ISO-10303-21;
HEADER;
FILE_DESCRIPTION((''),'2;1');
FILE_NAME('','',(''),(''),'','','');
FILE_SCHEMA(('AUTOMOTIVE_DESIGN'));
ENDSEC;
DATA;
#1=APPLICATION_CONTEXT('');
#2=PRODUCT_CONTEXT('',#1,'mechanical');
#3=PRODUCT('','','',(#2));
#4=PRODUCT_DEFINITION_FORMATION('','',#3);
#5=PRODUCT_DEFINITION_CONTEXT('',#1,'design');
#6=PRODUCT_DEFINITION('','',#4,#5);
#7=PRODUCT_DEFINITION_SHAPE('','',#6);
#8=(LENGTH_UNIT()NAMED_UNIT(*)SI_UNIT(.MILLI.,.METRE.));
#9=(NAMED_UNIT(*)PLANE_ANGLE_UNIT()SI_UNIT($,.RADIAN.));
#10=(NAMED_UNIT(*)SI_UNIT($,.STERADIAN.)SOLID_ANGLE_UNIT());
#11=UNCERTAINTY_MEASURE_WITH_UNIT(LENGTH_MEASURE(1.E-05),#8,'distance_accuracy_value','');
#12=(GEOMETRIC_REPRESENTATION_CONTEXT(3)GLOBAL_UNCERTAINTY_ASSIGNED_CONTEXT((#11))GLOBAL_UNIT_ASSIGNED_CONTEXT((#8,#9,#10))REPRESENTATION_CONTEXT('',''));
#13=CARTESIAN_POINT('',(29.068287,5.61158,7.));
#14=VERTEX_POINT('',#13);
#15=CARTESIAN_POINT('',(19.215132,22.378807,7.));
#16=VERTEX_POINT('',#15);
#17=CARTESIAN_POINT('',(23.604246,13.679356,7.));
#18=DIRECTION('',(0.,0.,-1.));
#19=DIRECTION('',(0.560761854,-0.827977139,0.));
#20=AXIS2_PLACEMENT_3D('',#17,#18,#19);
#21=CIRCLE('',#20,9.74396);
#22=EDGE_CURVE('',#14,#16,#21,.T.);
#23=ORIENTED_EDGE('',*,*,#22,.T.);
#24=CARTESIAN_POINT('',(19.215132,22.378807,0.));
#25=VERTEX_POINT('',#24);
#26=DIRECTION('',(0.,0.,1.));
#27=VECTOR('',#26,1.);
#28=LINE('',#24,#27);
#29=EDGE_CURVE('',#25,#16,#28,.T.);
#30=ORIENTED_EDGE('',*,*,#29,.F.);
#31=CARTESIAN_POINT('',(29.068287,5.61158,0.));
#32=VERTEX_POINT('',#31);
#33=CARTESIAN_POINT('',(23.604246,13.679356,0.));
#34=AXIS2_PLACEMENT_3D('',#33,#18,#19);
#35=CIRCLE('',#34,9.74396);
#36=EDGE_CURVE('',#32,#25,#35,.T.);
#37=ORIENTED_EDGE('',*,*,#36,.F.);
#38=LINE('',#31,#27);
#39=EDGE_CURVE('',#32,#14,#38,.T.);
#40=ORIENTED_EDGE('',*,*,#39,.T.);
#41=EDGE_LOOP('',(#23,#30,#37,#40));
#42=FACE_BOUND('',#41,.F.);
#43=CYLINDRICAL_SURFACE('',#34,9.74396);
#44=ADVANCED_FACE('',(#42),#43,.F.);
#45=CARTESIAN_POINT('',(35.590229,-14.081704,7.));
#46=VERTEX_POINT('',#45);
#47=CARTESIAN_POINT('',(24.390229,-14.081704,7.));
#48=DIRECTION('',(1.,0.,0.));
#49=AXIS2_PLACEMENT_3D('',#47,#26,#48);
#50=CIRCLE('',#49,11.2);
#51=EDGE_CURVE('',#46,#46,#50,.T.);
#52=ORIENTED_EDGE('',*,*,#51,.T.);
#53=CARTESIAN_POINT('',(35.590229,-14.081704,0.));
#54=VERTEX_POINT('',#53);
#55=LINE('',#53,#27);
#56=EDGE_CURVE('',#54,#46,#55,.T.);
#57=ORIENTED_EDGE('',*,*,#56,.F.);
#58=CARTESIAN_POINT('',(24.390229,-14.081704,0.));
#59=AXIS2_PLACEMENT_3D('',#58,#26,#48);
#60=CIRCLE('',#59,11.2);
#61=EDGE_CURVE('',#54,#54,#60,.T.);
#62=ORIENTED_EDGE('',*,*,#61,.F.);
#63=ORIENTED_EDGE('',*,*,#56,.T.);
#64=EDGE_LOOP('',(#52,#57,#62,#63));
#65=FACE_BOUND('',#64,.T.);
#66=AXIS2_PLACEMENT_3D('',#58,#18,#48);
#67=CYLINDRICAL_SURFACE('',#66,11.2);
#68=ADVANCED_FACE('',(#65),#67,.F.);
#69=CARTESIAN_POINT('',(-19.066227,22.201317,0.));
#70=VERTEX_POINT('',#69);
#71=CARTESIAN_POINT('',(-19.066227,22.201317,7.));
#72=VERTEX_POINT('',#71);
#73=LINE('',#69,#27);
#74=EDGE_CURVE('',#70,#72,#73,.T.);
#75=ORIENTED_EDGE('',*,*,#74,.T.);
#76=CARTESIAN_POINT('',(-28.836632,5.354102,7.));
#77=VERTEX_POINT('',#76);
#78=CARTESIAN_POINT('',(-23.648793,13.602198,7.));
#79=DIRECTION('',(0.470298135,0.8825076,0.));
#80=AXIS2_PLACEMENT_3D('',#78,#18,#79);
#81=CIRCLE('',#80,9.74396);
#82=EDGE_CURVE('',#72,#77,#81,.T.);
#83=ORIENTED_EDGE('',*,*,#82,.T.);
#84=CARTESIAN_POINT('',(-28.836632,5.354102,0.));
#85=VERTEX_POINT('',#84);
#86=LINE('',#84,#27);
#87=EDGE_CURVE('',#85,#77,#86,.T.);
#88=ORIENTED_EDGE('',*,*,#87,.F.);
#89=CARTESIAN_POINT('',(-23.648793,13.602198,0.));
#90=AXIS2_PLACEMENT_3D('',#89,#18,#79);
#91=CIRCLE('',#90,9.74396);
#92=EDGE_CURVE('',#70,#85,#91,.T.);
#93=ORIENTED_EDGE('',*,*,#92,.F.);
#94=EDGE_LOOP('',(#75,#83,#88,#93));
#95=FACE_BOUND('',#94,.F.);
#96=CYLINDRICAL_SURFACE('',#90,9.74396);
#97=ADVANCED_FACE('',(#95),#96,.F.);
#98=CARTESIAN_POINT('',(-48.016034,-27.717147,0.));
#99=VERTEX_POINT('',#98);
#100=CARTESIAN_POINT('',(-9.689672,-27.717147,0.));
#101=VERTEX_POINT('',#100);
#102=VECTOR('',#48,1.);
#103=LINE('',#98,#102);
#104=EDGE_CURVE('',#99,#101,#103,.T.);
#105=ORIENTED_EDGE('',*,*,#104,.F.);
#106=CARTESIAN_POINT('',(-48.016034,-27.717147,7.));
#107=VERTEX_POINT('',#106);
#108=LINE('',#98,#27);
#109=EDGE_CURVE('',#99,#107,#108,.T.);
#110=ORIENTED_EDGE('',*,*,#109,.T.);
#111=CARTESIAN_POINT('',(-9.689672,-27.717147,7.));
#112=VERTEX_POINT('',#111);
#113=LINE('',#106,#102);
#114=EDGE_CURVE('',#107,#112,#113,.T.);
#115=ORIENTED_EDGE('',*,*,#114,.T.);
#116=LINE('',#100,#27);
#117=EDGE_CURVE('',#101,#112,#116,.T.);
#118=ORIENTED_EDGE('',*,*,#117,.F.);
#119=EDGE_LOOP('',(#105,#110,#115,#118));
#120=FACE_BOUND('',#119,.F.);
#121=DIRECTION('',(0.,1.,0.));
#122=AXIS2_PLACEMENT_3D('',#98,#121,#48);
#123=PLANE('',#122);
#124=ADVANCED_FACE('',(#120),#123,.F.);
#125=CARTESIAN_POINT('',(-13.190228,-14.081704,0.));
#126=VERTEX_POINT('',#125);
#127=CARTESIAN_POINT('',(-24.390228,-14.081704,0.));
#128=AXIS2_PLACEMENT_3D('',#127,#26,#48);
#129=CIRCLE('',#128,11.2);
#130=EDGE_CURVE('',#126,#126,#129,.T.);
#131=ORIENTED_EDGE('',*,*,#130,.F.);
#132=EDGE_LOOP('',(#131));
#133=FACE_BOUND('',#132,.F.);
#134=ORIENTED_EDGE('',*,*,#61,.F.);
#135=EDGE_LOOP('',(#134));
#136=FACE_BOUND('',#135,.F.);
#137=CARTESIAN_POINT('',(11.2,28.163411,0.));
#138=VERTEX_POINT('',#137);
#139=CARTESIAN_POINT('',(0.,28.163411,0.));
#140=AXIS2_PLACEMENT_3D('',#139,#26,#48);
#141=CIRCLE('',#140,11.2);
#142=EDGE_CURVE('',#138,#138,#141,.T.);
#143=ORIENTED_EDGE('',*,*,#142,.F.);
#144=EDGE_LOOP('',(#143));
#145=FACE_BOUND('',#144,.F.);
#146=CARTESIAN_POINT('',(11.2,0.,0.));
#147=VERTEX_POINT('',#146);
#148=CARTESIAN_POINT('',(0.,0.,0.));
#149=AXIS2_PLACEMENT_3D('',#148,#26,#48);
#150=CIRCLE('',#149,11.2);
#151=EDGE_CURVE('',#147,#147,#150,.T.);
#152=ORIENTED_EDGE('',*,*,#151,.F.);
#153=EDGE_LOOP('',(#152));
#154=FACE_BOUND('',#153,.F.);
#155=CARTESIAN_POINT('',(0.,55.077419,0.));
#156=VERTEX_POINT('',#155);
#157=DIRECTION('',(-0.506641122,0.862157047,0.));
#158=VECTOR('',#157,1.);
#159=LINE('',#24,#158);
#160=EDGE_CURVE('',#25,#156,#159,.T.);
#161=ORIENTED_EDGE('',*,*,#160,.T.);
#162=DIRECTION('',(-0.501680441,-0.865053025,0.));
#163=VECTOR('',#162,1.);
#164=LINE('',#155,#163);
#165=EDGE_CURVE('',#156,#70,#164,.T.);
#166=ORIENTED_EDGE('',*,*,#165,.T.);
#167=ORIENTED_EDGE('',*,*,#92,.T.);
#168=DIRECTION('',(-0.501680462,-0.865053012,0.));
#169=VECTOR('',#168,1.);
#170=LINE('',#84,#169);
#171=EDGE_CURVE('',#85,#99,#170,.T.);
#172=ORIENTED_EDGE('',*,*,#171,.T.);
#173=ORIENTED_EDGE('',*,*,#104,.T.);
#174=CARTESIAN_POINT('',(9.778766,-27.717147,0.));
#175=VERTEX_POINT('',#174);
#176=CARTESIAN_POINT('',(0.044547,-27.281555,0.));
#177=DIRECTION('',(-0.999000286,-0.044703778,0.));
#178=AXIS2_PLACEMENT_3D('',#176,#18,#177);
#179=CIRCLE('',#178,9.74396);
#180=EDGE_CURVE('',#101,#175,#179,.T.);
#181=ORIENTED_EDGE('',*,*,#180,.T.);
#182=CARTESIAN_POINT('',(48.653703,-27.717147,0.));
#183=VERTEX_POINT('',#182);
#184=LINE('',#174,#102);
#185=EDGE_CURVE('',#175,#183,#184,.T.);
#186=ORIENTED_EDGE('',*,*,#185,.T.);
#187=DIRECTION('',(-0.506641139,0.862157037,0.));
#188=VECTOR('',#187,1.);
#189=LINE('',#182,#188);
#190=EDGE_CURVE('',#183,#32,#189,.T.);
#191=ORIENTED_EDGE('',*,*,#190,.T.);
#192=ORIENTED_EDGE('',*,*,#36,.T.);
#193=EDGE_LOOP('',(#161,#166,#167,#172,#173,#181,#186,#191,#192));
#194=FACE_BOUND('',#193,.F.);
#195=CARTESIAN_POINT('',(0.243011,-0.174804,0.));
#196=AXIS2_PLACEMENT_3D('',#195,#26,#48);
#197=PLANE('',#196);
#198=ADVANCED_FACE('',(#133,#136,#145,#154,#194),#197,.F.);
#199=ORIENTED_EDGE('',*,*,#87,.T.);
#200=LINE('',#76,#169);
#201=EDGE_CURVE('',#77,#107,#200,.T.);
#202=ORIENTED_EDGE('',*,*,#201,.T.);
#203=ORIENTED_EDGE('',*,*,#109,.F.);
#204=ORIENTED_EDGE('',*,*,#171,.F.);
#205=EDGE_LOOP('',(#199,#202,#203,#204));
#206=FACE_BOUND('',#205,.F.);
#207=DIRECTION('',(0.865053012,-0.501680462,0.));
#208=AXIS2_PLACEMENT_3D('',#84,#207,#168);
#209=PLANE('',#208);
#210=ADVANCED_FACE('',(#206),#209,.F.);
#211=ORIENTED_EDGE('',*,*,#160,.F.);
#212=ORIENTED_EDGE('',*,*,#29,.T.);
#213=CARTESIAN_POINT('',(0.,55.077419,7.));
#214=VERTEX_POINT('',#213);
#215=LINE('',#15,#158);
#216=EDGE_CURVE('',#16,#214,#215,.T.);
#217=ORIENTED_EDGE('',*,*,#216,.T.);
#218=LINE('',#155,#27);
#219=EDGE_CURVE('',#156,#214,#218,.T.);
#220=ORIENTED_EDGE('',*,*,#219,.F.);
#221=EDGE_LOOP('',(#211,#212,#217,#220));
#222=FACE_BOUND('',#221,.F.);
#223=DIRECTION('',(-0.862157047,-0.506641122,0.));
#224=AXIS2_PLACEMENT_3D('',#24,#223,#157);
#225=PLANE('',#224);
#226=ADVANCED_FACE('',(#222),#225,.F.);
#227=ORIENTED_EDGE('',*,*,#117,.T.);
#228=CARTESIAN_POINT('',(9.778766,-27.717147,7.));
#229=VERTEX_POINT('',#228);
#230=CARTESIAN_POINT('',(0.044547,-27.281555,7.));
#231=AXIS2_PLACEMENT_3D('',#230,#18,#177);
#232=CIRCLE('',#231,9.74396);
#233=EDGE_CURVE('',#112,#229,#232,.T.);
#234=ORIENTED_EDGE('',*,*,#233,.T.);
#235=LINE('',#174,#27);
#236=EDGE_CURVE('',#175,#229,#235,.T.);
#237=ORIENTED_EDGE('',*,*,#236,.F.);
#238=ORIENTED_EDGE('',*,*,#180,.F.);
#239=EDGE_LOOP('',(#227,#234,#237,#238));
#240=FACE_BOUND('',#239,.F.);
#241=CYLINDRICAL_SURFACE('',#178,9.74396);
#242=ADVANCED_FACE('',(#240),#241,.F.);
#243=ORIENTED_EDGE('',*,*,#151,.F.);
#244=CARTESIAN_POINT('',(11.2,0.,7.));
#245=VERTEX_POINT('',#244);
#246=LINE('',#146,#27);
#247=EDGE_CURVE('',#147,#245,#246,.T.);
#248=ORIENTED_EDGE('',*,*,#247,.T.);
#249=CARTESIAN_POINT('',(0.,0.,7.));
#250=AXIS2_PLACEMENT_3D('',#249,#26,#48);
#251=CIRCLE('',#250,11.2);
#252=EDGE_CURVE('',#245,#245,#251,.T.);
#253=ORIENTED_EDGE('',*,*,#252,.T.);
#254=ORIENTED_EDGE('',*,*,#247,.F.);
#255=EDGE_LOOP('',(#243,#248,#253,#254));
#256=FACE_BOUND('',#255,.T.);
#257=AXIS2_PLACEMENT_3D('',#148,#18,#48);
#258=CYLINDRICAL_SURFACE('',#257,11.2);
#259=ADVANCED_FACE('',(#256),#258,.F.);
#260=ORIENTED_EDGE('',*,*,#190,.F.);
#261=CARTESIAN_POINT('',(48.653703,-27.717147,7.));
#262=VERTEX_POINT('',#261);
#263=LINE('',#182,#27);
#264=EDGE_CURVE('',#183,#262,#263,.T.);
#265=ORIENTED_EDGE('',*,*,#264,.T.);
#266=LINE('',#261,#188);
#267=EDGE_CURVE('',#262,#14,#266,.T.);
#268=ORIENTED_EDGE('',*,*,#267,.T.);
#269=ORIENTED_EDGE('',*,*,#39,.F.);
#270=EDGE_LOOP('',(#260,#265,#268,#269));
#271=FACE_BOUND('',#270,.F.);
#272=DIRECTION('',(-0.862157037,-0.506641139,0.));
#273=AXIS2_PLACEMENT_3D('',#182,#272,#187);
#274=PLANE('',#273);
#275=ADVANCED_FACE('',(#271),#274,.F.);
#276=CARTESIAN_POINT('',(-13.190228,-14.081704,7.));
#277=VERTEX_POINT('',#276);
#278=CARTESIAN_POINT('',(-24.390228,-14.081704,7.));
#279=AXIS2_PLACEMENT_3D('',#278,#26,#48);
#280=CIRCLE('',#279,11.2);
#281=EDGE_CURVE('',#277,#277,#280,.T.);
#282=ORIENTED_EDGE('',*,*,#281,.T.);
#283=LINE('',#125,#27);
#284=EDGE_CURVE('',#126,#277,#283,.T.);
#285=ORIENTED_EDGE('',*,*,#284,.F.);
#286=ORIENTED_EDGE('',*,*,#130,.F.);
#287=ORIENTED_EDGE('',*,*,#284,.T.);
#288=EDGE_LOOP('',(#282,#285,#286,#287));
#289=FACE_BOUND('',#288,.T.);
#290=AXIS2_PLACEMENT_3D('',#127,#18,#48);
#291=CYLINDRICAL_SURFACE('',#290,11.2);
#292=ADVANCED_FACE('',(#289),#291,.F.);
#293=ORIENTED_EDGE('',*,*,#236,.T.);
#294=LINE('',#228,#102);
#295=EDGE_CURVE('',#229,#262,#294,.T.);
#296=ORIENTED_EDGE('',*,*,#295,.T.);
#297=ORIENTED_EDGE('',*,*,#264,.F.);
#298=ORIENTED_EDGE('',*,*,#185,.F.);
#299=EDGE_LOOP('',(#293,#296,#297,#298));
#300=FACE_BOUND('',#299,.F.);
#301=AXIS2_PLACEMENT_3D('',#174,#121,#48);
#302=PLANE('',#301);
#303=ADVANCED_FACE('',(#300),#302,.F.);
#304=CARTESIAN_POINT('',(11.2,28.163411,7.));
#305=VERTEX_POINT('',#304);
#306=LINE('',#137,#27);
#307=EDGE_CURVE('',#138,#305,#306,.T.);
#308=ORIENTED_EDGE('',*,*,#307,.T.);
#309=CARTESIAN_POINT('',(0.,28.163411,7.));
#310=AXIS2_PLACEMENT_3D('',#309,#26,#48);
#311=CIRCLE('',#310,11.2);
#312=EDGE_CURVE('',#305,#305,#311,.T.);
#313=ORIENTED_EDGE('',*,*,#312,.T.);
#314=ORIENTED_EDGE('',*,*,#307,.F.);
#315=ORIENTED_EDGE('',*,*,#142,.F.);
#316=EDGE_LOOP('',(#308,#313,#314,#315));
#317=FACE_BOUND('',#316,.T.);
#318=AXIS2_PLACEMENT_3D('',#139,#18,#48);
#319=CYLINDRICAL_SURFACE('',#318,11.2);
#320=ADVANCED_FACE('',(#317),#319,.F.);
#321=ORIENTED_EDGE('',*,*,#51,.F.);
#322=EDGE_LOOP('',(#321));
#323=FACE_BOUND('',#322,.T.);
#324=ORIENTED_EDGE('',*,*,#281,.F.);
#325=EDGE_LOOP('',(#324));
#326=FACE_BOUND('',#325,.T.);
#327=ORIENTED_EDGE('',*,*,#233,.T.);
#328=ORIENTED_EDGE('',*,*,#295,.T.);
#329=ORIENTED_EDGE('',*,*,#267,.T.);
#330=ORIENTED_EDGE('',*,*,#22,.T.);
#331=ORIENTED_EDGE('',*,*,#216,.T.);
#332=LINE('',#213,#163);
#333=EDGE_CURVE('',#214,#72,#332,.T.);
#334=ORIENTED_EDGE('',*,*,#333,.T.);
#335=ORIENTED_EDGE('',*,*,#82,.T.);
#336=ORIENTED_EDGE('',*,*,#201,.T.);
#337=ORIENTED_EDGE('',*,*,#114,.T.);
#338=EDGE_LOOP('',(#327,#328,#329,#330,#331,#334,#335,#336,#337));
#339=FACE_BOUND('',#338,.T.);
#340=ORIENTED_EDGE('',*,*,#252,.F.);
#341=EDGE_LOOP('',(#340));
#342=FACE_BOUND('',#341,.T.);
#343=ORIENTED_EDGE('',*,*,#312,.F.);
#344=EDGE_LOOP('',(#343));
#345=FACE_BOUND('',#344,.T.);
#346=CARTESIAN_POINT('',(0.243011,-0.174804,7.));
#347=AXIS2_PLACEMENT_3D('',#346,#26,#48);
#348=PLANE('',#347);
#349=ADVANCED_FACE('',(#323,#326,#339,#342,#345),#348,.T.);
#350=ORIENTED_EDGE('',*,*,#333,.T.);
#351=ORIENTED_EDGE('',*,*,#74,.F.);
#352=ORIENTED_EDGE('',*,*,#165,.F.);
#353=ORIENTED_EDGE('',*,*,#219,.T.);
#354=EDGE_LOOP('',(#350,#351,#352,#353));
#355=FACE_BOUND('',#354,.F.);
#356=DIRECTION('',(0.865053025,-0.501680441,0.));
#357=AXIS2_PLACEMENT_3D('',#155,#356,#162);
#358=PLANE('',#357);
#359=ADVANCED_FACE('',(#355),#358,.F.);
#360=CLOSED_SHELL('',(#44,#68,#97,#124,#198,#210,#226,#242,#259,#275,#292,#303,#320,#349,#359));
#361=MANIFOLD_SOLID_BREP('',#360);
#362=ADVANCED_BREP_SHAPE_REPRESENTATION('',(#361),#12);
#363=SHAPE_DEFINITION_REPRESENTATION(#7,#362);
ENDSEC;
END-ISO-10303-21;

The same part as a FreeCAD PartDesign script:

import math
import FreeCAD as App
import Part
import Sketcher
from FreeCAD import Vector
Q = App.Units.Quantity

doc = App.newDocument("Part")
params = doc.addObject("Spreadsheet::Sheet", "Params")
for row, (alias, value) in enumerate([
    ("sketch1_diameter", "22.4 mm"),
    ("pad1_length", "7 mm"),
], start=1):
    params.set(f"A{row}", alias)
    params.set(f"B{row}", "=" + value)
    params.setAlias(f"B{row}", alias)

body = doc.addObject("PartDesign::Body", "Body")

# Sketch on XY plane
sketch1 = doc.addObject("Sketcher::SketchObject", "Sketch")
body.addObject(sketch1)
sketch1.AttachmentSupport = (doc.XY_Plane, [""])
sketch1.MapMode = "FlatFace"
sketch1.addGeometry(Part.LineSegment(Vector(19.215132, 22.378807, 0), Vector(0, 55.077419, 0)), False)
sketch1.addGeometry(Part.LineSegment(Vector(0, 55.077419, 0), Vector(-19.066227, 22.201317, 0)), False)
sketch1.addGeometry(Part.ArcOfCircle(Part.Circle(Vector(-23.648793, 13.602198, 0), Vector(0, 0, 1), 9.74396), math.radians(-122.168829), math.radians(61.946349)), False)
sketch1.addGeometry(Part.LineSegment(Vector(-28.836632, 5.354102, 0), Vector(-48.016034, -27.717147, 0)), False)
sketch1.addGeometry(Part.LineSegment(Vector(-48.016034, -27.717147, 0), Vector(-9.689672, -27.717147, 0)), False)
sketch1.addGeometry(Part.ArcOfCircle(Part.Circle(Vector(0.044547, -27.281555, 0), Vector(0, 0, 1), 9.74396), math.radians(-2.562192), math.radians(182.562192)), False)
sketch1.addGeometry(Part.LineSegment(Vector(9.778766, -27.717147, 0), Vector(48.653703, -27.717147, 0)), False)
sketch1.addGeometry(Part.LineSegment(Vector(48.653703, -27.717147, 0), Vector(29.068287, 5.61158, 0)), False)
sketch1.addGeometry(Part.ArcOfCircle(Part.Circle(Vector(23.604246, 13.679356, 0), Vector(0, 0, 1), 9.74396), math.radians(116.772209), math.radians(304.108501)), False)
sketch1.addGeometry(Part.Circle(Vector(-24.390228, -14.081704, 0), Vector(0, 0, 1), 11.2), False)
sketch1.addGeometry(Part.Circle(Vector(0, 0, 0), Vector(0, 0, 1), 11.2), False)
sketch1.addGeometry(Part.Circle(Vector(24.390229, -14.081704, 0), Vector(0, 0, 1), 11.2), False)
sketch1.addGeometry(Part.Circle(Vector(0, 28.163411, 0), Vector(0, 0, 1), 11.2), False)
sketch1.addConstraint(Sketcher.Constraint("Coincident", 0, 2, 1, 1))
sketch1.addConstraint(Sketcher.Constraint("Coincident", 1, 2, 2, 2))
sketch1.addConstraint(Sketcher.Constraint("Coincident", 2, 1, 3, 1))
sketch1.addConstraint(Sketcher.Constraint("Coincident", 3, 2, 4, 1))
sketch1.addConstraint(Sketcher.Constraint("Coincident", 4, 2, 5, 2))
sketch1.addConstraint(Sketcher.Constraint("Coincident", 5, 1, 6, 1))
sketch1.addConstraint(Sketcher.Constraint("Coincident", 6, 2, 7, 1))
sketch1.addConstraint(Sketcher.Constraint("Coincident", 7, 2, 8, 2))
sketch1.addConstraint(Sketcher.Constraint("Coincident", 8, 1, 0, 1))
sketch1.addConstraint(Sketcher.Constraint("Horizontal", 4))
sketch1.addConstraint(Sketcher.Constraint("Horizontal", 6))
sketch1.addConstraint(Sketcher.Constraint("Coincident", 10, 3, -1, 1))
sketch1.addConstraint(Sketcher.Constraint("Equal", 2, 5))
sketch1.addConstraint(Sketcher.Constraint("Equal", 5, 8))
sketch1.addConstraint(Sketcher.Constraint("Equal", 9, 10))
sketch1.addConstraint(Sketcher.Constraint("Equal", 10, 11))
sketch1.addConstraint(Sketcher.Constraint("Equal", 11, 12))
sketch1.addConstraint(Sketcher.Constraint("Symmetric", 9, 3, 11, 3, -2))
sketch1.addConstraint(Sketcher.Constraint("PointOnObject", 12, 3, -2))
sketch1.addConstraint(Sketcher.Constraint("PointOnObject", 0, 2, -2))
sketch1.addConstraint(Sketcher.Constraint("Parallel", 1, 3))
sketch1.addConstraint(Sketcher.Constraint("Parallel", 0, 7))
sketch1.addConstraint(Sketcher.Constraint("Horizontal", 4, 2, 5, 1))
sketch1.addConstraint(Sketcher.Constraint("Diameter", 9, Q("22.4 mm")))
sketch1.addConstraint(Sketcher.Constraint("Radius", 2, Q("9.74396 mm")))
sketch1.addConstraint(Sketcher.Constraint("DistanceX", 9, 3, 1, 2, Q("5.324001 mm")))
sketch1.addConstraint(Sketcher.Constraint("DistanceX", 4, 1, 4, 2, Q("38.326362 mm")))
sketch1.addConstraint(Sketcher.Constraint("DistanceY", -1, 1, 2, 3, Q("13.602198 mm")))
sketch1.addConstraint(Sketcher.Constraint("DistanceY", -1, 1, 2, 1, Q("5.354102 mm")))
sketch1.addConstraint(Sketcher.Constraint("DistanceX", 5, 3, 8, 3, Q("23.559699 mm")))
sketch1.addConstraint(Sketcher.Constraint("DistanceX", 3, 2, 2, 1, Q("19.179402 mm")))
sketch1.addConstraint(Sketcher.Constraint("DistanceX", 4, 2, 11, 3, Q("34.079901 mm")))
sketch1.addConstraint(Sketcher.Constraint("DistanceX", 6, 1, 6, 2, Q("38.874937 mm")))
sketch1.addConstraint(Sketcher.Constraint("DistanceX", 9, 3, -1, 1, Q("24.390228 mm")))
sketch1.addConstraint(Sketcher.Constraint("DistanceY", -1, 1, 12, 3, Q("28.163411 mm")))
sketch1.addConstraint(Sketcher.Constraint("DistanceY", -1, 1, 0, 2, Q("55.077419 mm")))
sketch1.addConstraint(Sketcher.Constraint("DistanceY", -1, 1, 7, 2, Q("5.61158 mm")))
sketch1.addConstraint(Sketcher.Constraint("DistanceX", -1, 1, 8, 1, Q("19.215132 mm")))
sketch1.addConstraint(Sketcher.Constraint("DistanceX", 2, 3, 5, 3, Q("23.69334 mm")))
sketch1.addConstraint(Sketcher.Constraint("DistanceY", 5, 3, 9, 3, Q("13.199851 mm")))
sketch1.setExpression("Constraints[23]", "Params.sketch1_diameter")
pad1 = doc.addObject("PartDesign::Pad", "Pad")
body.addObject(pad1)
pad1.Profile = sketch1
pad1.setExpression("Length", "Params.pad1_length")

doc.recompute()
